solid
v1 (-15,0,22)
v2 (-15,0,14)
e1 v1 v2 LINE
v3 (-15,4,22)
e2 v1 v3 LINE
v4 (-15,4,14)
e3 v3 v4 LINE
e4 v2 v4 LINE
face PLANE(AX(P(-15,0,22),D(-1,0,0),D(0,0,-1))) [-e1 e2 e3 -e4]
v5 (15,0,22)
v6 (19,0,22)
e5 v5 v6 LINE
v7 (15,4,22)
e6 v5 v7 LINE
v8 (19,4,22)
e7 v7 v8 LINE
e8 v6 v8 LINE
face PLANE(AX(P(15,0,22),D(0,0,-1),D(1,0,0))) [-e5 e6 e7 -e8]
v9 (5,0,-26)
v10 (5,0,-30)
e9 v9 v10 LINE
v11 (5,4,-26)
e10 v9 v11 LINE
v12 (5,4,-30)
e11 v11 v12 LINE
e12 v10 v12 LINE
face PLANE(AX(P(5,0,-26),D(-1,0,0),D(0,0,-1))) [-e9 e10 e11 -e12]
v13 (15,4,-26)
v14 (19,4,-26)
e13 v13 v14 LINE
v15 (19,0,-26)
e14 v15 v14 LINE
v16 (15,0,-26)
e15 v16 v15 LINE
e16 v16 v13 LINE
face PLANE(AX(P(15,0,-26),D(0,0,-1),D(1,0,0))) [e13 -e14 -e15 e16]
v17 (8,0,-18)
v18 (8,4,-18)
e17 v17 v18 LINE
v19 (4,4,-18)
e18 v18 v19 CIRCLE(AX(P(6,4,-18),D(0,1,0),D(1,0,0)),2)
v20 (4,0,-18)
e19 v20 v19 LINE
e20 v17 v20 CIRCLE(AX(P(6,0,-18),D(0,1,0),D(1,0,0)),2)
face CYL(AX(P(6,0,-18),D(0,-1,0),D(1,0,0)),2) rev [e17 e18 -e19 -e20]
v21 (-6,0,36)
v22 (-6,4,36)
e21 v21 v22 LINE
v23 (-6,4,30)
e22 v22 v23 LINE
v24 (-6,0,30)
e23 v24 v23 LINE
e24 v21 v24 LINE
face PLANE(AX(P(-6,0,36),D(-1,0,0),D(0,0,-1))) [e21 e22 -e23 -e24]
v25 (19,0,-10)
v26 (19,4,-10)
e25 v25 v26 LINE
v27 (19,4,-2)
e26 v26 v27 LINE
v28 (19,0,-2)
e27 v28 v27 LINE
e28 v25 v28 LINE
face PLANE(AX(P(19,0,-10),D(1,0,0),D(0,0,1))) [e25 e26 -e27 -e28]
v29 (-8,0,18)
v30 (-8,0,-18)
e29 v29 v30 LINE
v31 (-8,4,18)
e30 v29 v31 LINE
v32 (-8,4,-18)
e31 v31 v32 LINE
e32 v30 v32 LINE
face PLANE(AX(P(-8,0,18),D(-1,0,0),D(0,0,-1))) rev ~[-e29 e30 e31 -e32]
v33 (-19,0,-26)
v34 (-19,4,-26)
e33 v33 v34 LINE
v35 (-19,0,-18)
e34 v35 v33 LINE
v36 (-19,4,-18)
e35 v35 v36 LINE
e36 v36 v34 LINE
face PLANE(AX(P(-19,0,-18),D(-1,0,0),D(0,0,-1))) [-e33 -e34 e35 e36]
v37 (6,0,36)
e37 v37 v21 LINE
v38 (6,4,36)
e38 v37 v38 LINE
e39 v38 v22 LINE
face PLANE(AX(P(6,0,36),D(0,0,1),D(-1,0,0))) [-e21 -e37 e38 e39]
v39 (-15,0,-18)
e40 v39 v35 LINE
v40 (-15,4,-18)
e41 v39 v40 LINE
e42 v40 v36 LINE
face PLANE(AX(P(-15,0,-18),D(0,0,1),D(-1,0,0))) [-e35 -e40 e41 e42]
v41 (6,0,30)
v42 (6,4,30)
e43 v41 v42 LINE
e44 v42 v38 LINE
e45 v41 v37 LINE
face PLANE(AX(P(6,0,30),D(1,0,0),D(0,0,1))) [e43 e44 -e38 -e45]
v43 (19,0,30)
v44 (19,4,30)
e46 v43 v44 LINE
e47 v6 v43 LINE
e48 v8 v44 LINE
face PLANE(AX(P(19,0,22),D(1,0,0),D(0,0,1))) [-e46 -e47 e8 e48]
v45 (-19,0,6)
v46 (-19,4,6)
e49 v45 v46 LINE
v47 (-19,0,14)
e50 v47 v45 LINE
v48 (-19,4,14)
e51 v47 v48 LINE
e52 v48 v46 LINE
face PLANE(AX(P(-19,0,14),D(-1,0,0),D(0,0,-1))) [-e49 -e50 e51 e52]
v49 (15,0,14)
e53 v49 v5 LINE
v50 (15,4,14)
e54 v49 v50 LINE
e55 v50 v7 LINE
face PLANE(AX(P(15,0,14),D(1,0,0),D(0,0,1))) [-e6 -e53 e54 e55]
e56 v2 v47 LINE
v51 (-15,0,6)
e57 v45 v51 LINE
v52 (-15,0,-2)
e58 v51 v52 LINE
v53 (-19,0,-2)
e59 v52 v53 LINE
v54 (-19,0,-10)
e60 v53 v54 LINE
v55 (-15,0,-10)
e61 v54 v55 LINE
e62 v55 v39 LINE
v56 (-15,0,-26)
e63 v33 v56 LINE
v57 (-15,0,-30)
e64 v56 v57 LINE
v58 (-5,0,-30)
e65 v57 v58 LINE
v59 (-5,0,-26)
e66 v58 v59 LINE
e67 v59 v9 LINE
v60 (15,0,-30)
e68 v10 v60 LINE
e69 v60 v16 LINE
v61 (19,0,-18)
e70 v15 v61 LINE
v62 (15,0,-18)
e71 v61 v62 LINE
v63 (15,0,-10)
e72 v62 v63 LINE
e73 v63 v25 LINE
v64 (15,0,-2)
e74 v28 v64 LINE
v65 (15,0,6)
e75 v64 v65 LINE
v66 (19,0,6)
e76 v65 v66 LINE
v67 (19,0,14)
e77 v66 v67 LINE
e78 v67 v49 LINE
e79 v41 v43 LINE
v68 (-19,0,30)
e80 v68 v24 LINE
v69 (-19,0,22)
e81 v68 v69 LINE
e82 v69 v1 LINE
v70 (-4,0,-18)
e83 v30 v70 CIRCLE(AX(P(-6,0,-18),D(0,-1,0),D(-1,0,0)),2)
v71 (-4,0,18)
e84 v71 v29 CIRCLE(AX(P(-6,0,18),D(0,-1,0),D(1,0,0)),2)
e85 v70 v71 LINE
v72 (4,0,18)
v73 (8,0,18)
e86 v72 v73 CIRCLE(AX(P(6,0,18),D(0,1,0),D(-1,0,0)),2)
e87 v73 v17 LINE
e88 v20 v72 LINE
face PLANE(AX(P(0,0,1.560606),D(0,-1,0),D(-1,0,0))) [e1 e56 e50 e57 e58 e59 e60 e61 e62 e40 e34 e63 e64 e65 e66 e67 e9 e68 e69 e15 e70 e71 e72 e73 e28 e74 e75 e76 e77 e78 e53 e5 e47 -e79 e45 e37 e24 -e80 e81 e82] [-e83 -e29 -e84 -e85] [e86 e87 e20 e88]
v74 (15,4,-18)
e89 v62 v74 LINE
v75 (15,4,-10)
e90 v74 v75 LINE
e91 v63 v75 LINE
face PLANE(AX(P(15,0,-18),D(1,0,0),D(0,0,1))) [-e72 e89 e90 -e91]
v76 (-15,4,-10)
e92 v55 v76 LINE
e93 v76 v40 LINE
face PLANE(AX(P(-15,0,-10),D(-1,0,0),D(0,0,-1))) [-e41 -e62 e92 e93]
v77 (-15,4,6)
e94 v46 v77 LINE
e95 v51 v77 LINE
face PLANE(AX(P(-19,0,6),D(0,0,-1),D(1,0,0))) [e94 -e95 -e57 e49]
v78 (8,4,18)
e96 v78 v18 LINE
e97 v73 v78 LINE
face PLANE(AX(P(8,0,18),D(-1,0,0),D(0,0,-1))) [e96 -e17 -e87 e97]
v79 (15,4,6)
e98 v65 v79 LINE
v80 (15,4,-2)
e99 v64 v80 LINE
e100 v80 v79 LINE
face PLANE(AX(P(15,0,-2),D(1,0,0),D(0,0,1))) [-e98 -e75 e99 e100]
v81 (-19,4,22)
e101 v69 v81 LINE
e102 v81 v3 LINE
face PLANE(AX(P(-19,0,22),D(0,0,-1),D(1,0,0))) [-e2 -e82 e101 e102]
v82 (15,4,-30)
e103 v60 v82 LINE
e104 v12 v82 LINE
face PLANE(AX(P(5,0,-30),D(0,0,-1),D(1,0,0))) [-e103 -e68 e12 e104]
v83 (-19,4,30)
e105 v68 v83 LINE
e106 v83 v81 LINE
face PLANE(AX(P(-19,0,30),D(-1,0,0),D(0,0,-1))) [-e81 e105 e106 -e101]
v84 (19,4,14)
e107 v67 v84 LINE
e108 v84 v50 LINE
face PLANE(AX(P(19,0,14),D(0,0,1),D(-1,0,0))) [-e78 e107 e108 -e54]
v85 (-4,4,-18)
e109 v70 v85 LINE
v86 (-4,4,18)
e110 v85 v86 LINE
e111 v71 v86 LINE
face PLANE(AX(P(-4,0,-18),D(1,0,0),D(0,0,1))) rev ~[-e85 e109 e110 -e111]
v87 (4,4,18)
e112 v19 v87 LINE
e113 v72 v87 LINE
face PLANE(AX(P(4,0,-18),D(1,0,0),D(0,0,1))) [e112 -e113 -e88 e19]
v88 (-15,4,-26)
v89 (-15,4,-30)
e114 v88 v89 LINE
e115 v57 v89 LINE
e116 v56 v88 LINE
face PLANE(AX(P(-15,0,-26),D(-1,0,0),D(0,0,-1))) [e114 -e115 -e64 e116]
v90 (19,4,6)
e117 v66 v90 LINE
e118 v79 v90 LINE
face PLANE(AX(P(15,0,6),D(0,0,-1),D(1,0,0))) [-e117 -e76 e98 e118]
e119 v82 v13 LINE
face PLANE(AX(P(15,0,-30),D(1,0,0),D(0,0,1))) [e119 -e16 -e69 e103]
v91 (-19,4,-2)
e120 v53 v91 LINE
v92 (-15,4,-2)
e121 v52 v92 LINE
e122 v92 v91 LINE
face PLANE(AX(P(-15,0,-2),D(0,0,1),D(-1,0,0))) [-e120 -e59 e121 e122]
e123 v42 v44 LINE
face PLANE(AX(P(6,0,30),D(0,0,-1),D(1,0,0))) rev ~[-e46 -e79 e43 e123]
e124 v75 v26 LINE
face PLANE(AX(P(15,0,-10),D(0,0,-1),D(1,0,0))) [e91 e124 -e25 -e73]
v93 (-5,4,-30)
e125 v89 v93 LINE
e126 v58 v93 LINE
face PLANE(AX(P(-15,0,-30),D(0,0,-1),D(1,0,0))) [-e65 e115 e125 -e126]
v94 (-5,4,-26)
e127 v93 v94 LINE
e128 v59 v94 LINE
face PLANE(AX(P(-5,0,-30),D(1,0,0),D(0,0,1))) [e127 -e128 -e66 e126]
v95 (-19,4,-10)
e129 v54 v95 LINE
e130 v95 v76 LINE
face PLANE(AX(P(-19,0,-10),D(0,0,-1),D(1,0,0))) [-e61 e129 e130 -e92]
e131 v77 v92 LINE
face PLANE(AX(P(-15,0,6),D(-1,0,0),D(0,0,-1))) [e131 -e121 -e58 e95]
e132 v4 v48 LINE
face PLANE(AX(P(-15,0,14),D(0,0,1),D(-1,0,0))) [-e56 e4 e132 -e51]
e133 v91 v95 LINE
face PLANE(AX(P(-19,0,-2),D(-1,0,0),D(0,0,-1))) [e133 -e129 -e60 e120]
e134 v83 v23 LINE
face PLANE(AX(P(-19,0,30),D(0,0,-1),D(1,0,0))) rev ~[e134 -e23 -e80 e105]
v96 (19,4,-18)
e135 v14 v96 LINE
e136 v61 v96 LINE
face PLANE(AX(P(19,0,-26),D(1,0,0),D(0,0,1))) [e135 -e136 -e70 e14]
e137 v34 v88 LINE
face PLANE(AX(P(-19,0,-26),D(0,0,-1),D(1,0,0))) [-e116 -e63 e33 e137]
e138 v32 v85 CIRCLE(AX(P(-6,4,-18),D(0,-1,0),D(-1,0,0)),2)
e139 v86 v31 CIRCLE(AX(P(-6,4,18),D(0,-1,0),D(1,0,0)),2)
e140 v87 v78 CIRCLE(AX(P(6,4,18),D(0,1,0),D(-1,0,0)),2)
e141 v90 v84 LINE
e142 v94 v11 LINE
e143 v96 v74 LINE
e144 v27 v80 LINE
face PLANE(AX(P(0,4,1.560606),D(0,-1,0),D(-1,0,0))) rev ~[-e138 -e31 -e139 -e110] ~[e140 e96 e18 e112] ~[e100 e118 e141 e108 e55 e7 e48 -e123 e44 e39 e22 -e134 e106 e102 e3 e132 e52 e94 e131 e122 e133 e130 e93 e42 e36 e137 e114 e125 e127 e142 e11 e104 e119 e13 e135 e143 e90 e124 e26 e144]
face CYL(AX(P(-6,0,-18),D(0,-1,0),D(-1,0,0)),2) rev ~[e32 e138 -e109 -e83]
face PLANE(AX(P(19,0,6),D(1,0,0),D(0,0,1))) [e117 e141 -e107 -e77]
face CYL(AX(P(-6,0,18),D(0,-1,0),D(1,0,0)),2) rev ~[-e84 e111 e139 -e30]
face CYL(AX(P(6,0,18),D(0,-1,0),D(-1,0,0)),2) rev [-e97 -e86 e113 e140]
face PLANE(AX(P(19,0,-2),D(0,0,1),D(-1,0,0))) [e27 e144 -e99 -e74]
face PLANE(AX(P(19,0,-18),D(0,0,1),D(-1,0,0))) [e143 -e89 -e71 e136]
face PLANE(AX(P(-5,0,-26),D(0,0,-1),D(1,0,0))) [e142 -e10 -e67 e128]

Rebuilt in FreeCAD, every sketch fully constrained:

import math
import FreeCAD as App
import Part
import Sketcher

V = App.Vector
Q = App.Units.Quantity

doc = App.newDocument("Part")
body = doc.addObject("PartDesign::Body", "Body")

# Sketch on XZ plane
sketch1 = body.newObject("Sketcher::SketchObject", "Sketch")
sketch1.AttachmentSupport = (doc.getObject("XZ_Plane"), [""])
sketch1.MapMode = "FlatFace"
sketch1.addGeometry([
    Part.LineSegment(V(5, -26, 0), V(-5, -26, 0)),  # 0
    Part.LineSegment(V(-5, -26, 0), V(-5, -30, 0)),  # 1
    Part.LineSegment(V(-5, -30, 0), V(-15, -30, 0)),  # 2
    Part.LineSegment(V(-15, -30, 0), V(-15, -26, 0)),  # 3
    Part.LineSegment(V(-15, -26, 0), V(-19, -26, 0)),  # 4
    Part.LineSegment(V(-19, -26, 0), V(-19, -18, 0)),  # 5
    Part.LineSegment(V(-19, -18, 0), V(-15, -18, 0)),  # 6
    Part.LineSegment(V(-15, -18, 0), V(-15, -10, 0)),  # 7
    Part.LineSegment(V(-15, -10, 0), V(-19, -10, 0)),  # 8
    Part.LineSegment(V(-19, -10, 0), V(-19, -2, 0)),  # 9
    Part.LineSegment(V(-19, -2, 0), V(-15, -2, 0)),  # 10
    Part.LineSegment(V(-15, -2, 0), V(-15, 6, 0)),  # 11
    Part.LineSegment(V(-15, 6, 0), V(-19, 6, 0)),  # 12
    Part.LineSegment(V(-19, 6, 0), V(-19, 14, 0)),  # 13
    Part.LineSegment(V(-19, 14, 0), V(-15, 14, 0)),  # 14
    Part.LineSegment(V(-15, 14, 0), V(-15, 22, 0)),  # 15
    Part.LineSegment(V(-15, 22, 0), V(-19, 22, 0)),  # 16
    Part.LineSegment(V(-19, 22, 0), V(-19, 30, 0)),  # 17
    Part.LineSegment(V(-19, 30, 0), V(-6, 30, 0)),  # 18
    Part.LineSegment(V(-6, 30, 0), V(-6, 36, 0)),  # 19
    Part.LineSegment(V(-6, 36, 0), V(6, 36, 0)),  # 20
    Part.LineSegment(V(6, 36, 0), V(6, 30, 0)),  # 21
    Part.LineSegment(V(6, 30, 0), V(19, 30, 0)),  # 22
    Part.LineSegment(V(19, 30, 0), V(19, 22, 0)),  # 23
    Part.LineSegment(V(19, 22, 0), V(15, 22, 0)),  # 24
    Part.LineSegment(V(15, 22, 0), V(15, 14, 0)),  # 25
    Part.LineSegment(V(15, 14, 0), V(19, 14, 0)),  # 26
    Part.LineSegment(V(19, 14, 0), V(19, 6, 0)),  # 27
    Part.LineSegment(V(19, 6, 0), V(15, 6, 0)),  # 28
    Part.LineSegment(V(15, 6, 0), V(15, -2, 0)),  # 29
    Part.LineSegment(V(15, -2, 0), V(19, -2, 0)),  # 30
    Part.LineSegment(V(19, -2, 0), V(19, -10, 0)),  # 31
    Part.LineSegment(V(19, -10, 0), V(15, -10, 0)),  # 32
    Part.LineSegment(V(15, -10, 0), V(15, -18, 0)),  # 33
    Part.LineSegment(V(15, -18, 0), V(19, -18, 0)),  # 34
    Part.LineSegment(V(19, -18, 0), V(19, -26, 0)),  # 35
    Part.LineSegment(V(19, -26, 0), V(15, -26, 0)),  # 36
    Part.LineSegment(V(15, -26, 0), V(15, -30, 0)),  # 37
    Part.LineSegment(V(15, -30, 0), V(5, -30, 0)),  # 38
    Part.LineSegment(V(5, -30, 0), V(5, -26, 0)),  # 39
    Part.ArcOfCircle(Part.Circle(V(6, 18, 0), V(0, 0, 1), 2), math.radians(0), math.radians(180)),  # 40
    Part.LineSegment(V(4, 18, 0), V(4, -18, 0)),  # 41
    Part.ArcOfCircle(Part.Circle(V(6, -18, 0), V(0, 0, 1), 2), math.radians(180), math.radians(360)),  # 42
    Part.LineSegment(V(8, -18, 0), V(8, 18, 0)),  # 43
    Part.LineSegment(V(-8, 18, 0), V(-8, -18, 0)),  # 44
    Part.ArcOfCircle(Part.Circle(V(-6, -18, 0), V(0, 0, 1), 2), math.radians(180), math.radians(360)),  # 45
    Part.LineSegment(V(-4, -18, 0), V(-4, 18, 0)),  # 46
    Part.ArcOfCircle(Part.Circle(V(-6, 18, 0), V(0, 0, 1), 2), math.radians(0), math.radians(180)),  # 47
], False)
sketch1.addConstraint([
    Sketcher.Constraint("Coincident", 0, 2, 1, 1),
    Sketcher.Constraint("Coincident", 1, 2, 2, 1),
    Sketcher.Constraint("Coincident", 2, 2, 3, 1),
    Sketcher.Constraint("Coincident", 3, 2, 4, 1),
    Sketcher.Constraint("Coincident", 4, 2, 5, 1),
    Sketcher.Constraint("Coincident", 5, 2, 6, 1),
    Sketcher.Constraint("Coincident", 6, 2, 7, 1),
    Sketcher.Constraint("Coincident", 7, 2, 8, 1),
    Sketcher.Constraint("Coincident", 8, 2, 9, 1),
    Sketcher.Constraint("Coincident", 9, 2, 10, 1),
    Sketcher.Constraint("Coincident", 10, 2, 11, 1),
    Sketcher.Constraint("Coincident", 11, 2, 12, 1),
    Sketcher.Constraint("Coincident", 12, 2, 13, 1),
    Sketcher.Constraint("Coincident", 13, 2, 14, 1),
    Sketcher.Constraint("Coincident", 14, 2, 15, 1),
    Sketcher.Constraint("Coincident", 15, 2, 16, 1),
    Sketcher.Constraint("Coincident", 16, 2, 17, 1),
    Sketcher.Constraint("Coincident", 17, 2, 18, 1),
    Sketcher.Constraint("Coincident", 18, 2, 19, 1),
    Sketcher.Constraint("Coincident", 19, 2, 20, 1),
    Sketcher.Constraint("Coincident", 20, 2, 21, 1),
    Sketcher.Constraint("Coincident", 21, 2, 22, 1),
    Sketcher.Constraint("Coincident", 22, 2, 23, 1),
    Sketcher.Constraint("Coincident", 23, 2, 24, 1),
    Sketcher.Constraint("Coincident", 24, 2, 25, 1),
    Sketcher.Constraint("Coincident", 25, 2, 26, 1),
    Sketcher.Constraint("Coincident", 26, 2, 27, 1),
    Sketcher.Constraint("Coincident", 27, 2, 28, 1),
    Sketcher.Constraint("Coincident", 28, 2, 29, 1),
    Sketcher.Constraint("Coincident", 29, 2, 30, 1),
    Sketcher.Constraint("Coincident", 30, 2, 31, 1),
    Sketcher.Constraint("Coincident", 31, 2, 32, 1),
    Sketcher.Constraint("Coincident", 32, 2, 33, 1),
    Sketcher.Constraint("Coincident", 33, 2, 34, 1),
    Sketcher.Constraint("Coincident", 34, 2, 35, 1),
    Sketcher.Constraint("Coincident", 35, 2, 36, 1),
    Sketcher.Constraint("Coincident", 36, 2, 37, 1),
    Sketcher.Constraint("Coincident", 37, 2, 38, 1),
    Sketcher.Constraint("Coincident", 38, 2, 39, 1),
    Sketcher.Constraint("Coincident", 39, 2, 0, 1),
    Sketcher.Constraint("Tangent", 40, 2, 41, 1),
    Sketcher.Constraint("Tangent", 41, 2, 42, 1),
    Sketcher.Constraint("Tangent", 42, 2, 43, 1),
    Sketcher.Constraint("Tangent", 43, 2, 40, 1),
    Sketcher.Constraint("Tangent", 44, 2, 45, 1),
    Sketcher.Constraint("Tangent", 45, 2, 46, 1),
    Sketcher.Constraint("Tangent", 46, 2, 47, 1),
    Sketcher.Constraint("Tangent", 47, 2, 44, 1),
    Sketcher.Constraint("Horizontal", 0),
    Sketcher.Constraint("Vertical", 1),
    Sketcher.Constraint("Horizontal", 2),
    Sketcher.Constraint("Vertical", 3),
    Sketcher.Constraint("Horizontal", 4),
    Sketcher.Constraint("Vertical", 5),
    Sketcher.Constraint("Horizontal", 6),
    Sketcher.Constraint("Vertical", 7),
    Sketcher.Constraint("Horizontal", 8),
    Sketcher.Constraint("Vertical", 9),
    Sketcher.Constraint("Horizontal", 10),
    Sketcher.Constraint("Vertical", 11),
    Sketcher.Constraint("Horizontal", 12),
    Sketcher.Constraint("Vertical", 13),
    Sketcher.Constraint("Horizontal", 14),
    Sketcher.Constraint("Vertical", 15),
    Sketcher.Constraint("Horizontal", 16),
    Sketcher.Constraint("Vertical", 17),
    Sketcher.Constraint("Horizontal", 18),
    Sketcher.Constraint("Vertical", 19),
    Sketcher.Constraint("Horizontal", 20),
    Sketcher.Constraint("Vertical", 21),
    Sketcher.Constraint("Horizontal", 22),
    Sketcher.Constraint("Vertical", 23),
    Sketcher.Constraint("Horizontal", 24),
    Sketcher.Constraint("Vertical", 25),
    Sketcher.Constraint("Horizontal", 26),
    Sketcher.Constraint("Vertical", 27),
    Sketcher.Constraint("Horizontal", 28),
    Sketcher.Constraint("Vertical", 29),
    Sketcher.Constraint("Horizontal", 30),
    Sketcher.Constraint("Vertical", 31),
    Sketcher.Constraint("Horizontal", 32),
    Sketcher.Constraint("Vertical", 33),
    Sketcher.Constraint("Horizontal", 34),
    Sketcher.Constraint("Vertical", 35),
    Sketcher.Constraint("Horizontal", 36),
    Sketcher.Constraint("Vertical", 37),
    Sketcher.Constraint("Horizontal", 38),
    Sketcher.Constraint("Vertical", 39),
    Sketcher.Constraint("Vertical", 41),
    Sketcher.Constraint("Vertical", 43),
    Sketcher.Constraint("Vertical", 44),
    Sketcher.Constraint("Vertical", 46),
    Sketcher.Constraint("Equal", 42, 45),
    Sketcher.Constraint("Symmetric", 40, 3, 45, 3, -1, 1),
    Sketcher.Constraint("Symmetric", 18, 2, 21, 2, -2),
    Sketcher.Constraint("Symmetric", 16, 2, 23, 2, -2),
    Sketcher.Constraint("Symmetric", 14, 2, 25, 2, -2),
    Sketcher.Constraint("Symmetric", 12, 2, 27, 2, -2),
    Sketcher.Constraint("Symmetric", 10, 2, 29, 2, -2),
    Sketcher.Constraint("Symmetric", 8, 2, 31, 2, -2),
    Sketcher.Constraint("Symmetric", 6, 2, 33, 2, -2),
    Sketcher.Constraint("Symmetric", 4, 2, 35, 2, -2),
    Sketcher.Constraint("Symmetric", 2, 2, 37, 2, -2),
    Sketcher.Constraint("Horizontal", 42, 3, 45, 3),
    Sketcher.Constraint("Horizontal", 40, 3, 47, 3),
    Sketcher.Constraint("Horizontal", 0, 2, 3, 2),
    Sketcher.Constraint("Horizontal", 45, 3, 5, 2),
    Sketcher.Constraint("Vertical", 3, 2, 6, 2),
    Sketcher.Constraint("Vertical", 5, 2, 8, 2),
    Sketcher.Constraint("Vertical", 7, 2, 10, 2),
    Sketcher.Constraint("Vertical", 9, 2, 12, 2),
    Sketcher.Constraint("Vertical", 11, 2, 14, 2),
    Sketcher.Constraint("Vertical", 13, 2, 16, 2),
    Sketcher.Constraint("Vertical", 47, 3, 18, 2),
    Sketcher.Constraint("Equal", 0, 2),
    Sketcher.Constraint("Equal", 2, 38),
    Sketcher.Constraint("Equal", 36, 1),
    Sketcher.Constraint("Equal", 5, 7),
    Sketcher.Constraint("Equal", 7, 9),
    Sketcher.Constraint("Equal", 9, 11),
    Sketcher.Constraint("Equal", 11, 13),
    Sketcher.Constraint("Equal", 13, 15),
    Sketcher.Constraint("Equal", 15, 17),
    Sketcher.Constraint("Radius", 40, Q("2 mm")),
    Sketcher.Constraint("DistanceX", 0, 2, 0, 1, Q("10 mm")),
    Sketcher.Constraint("DistanceX", 4, 2, 4, 1, Q("4 mm")),
    Sketcher.Constraint("DistanceX", 18, 1, 18, 2, Q("13 mm")),
    Sketcher.Constraint("DistanceY", 5, 1, 5, 2, Q("8 mm")),
    Sketcher.Constraint("DistanceY", 19, 1, 19, 2, Q("6 mm")),
    Sketcher.Constraint("DistanceY", 41, 2, 41, 1, Q("36 mm")),
])
pad1 = body.newObject("PartDesign::Pad", "Pad")
pad1.Profile = sketch1
pad1.Length = 4
pad1.Reversed = True

doc.recompute()
